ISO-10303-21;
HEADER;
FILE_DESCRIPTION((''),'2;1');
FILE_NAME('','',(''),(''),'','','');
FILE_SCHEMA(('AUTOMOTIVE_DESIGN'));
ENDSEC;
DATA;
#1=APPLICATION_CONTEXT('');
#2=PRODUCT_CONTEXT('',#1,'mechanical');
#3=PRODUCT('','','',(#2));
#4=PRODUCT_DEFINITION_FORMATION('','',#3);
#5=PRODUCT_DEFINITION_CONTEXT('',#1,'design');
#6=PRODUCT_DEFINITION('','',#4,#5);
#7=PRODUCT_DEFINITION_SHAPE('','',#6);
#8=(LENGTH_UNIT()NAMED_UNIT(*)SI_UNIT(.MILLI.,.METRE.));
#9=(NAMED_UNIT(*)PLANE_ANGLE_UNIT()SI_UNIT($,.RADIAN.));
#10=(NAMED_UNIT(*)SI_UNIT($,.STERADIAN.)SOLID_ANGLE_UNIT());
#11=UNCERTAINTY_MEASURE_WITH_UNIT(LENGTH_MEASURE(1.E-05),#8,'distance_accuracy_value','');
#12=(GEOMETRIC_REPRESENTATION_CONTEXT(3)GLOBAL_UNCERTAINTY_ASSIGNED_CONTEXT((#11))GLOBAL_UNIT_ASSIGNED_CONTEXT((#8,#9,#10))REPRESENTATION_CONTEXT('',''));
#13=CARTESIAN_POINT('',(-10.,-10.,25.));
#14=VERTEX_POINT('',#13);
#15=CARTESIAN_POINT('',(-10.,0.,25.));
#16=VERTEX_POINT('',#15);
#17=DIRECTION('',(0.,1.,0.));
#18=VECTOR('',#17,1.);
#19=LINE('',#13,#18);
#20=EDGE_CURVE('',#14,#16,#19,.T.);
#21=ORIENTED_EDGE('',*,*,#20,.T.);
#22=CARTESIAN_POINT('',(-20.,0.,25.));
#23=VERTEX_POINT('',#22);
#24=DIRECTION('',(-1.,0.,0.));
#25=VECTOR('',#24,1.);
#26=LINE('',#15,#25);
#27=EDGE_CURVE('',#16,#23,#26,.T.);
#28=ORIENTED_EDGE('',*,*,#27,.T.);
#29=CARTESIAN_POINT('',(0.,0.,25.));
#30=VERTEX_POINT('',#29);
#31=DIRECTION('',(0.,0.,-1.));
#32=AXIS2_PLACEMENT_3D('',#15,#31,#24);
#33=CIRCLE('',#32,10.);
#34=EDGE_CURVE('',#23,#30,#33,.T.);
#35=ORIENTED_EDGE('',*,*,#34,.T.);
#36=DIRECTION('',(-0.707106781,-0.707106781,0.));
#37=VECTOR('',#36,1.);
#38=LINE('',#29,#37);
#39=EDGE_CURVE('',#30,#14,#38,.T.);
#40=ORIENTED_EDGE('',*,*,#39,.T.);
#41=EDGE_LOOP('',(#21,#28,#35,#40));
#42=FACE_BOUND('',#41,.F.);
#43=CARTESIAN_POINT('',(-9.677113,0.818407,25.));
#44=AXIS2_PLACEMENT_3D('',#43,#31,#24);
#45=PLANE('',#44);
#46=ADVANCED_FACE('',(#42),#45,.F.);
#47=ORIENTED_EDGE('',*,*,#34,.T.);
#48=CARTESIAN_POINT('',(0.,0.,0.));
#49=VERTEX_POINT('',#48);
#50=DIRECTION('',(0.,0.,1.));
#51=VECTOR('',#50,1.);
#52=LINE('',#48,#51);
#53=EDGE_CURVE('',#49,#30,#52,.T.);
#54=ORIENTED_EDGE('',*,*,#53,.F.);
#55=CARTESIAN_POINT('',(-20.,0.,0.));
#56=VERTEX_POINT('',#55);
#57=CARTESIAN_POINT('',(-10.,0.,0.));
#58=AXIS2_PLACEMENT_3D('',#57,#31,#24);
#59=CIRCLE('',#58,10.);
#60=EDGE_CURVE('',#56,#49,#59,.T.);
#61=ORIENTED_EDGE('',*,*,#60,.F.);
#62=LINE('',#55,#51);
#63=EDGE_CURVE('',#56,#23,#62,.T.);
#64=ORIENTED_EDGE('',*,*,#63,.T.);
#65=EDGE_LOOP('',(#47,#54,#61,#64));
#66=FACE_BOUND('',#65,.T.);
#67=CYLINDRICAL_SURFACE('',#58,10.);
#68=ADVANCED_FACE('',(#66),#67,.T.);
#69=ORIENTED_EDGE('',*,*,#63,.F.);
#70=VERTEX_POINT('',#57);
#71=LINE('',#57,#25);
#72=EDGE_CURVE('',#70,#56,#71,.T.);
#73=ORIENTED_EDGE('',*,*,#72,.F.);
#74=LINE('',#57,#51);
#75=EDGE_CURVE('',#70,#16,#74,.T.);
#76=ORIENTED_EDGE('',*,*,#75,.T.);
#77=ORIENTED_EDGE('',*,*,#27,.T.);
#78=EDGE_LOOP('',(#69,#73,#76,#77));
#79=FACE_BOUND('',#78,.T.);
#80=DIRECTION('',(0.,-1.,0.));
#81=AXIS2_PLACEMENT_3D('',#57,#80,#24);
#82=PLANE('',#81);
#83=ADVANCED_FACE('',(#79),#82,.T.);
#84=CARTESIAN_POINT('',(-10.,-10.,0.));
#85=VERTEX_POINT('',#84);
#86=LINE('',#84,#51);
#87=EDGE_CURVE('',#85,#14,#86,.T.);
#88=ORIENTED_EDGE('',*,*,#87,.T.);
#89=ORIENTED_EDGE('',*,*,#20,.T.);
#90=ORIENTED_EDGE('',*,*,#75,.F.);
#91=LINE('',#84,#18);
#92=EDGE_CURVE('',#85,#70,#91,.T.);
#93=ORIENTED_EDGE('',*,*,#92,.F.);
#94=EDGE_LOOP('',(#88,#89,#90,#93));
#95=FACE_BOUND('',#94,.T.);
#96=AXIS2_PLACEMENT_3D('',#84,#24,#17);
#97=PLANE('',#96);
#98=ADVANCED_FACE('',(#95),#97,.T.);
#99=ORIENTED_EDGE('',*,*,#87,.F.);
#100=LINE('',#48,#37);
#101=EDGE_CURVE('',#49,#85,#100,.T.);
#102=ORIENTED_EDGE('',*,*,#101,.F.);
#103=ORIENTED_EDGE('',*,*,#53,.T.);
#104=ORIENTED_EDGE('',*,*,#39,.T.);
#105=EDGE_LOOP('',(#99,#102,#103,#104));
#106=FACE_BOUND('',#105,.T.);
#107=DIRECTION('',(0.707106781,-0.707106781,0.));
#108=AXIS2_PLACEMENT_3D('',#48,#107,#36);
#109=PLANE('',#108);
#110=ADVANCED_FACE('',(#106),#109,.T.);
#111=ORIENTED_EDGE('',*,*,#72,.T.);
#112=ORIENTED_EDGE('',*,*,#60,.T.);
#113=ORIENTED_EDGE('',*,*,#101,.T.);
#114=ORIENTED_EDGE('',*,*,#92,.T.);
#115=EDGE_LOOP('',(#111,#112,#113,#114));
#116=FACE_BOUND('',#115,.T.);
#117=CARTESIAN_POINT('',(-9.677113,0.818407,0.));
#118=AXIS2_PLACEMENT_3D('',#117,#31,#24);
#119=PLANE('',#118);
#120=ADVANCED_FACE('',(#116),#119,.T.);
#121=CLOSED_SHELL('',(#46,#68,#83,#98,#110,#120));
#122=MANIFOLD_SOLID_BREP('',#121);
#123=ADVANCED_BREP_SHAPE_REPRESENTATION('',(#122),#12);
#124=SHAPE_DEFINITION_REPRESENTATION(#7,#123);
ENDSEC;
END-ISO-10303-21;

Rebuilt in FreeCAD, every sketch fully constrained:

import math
import FreeCAD as App
import Part
import Sketcher

V = App.Vector

doc = App.newDocument("Part")
body = doc.addObject("PartDesign::Body", "Body")

# Sketch on XY plane
sketch1 = doc.addObject("Sketcher::SketchObject", "Sketch")
body.addObject(sketch1)
sketch1.AttachmentSupport = (doc.XY_Plane, [""])
sketch1.MapMode = "FlatFace"
sketch1.addGeometry(Part.LineSegment(V(-10, 0, 0), V(-10, -10, 0)), False)
sketch1.addGeometry(Part.LineSegment(V(-10, -10, 0), V(0, 0, 0)), False)
sketch1.addGeometry(Part.ArcOfCircle(Part.Circle(V(-10, 0, 0), V(0, 0, 1), 10), math.radians(0), math.radians(180)), False)
sketch1.addGeometry(Part.LineSegment(V(-20, 0, 0), V(-10, 0, 0)), False)
sketch1.addConstraint(Sketcher.Constraint("Coincident", 0, 2, 1, 1))
sketch1.addConstraint(Sketcher.Constraint("Coincident", 1, 2, 2, 1))
sketch1.addConstraint(Sketcher.Constraint("Coincident", 2, 2, 3, 1))
sketch1.addConstraint(Sketcher.Constraint("Coincident", 3, 2, 0, 1))
sketch1.addConstraint(Sketcher.Constraint("Vertical", 0))
sketch1.addConstraint(Sketcher.Constraint("Horizontal", 3))
sketch1.addConstraint(Sketcher.Constraint("Coincident", 1, 2, -1, 1))
sketch1.addConstraint(Sketcher.Constraint("Coincident", 3, 2, 2, 3))
sketch1.addConstraint(Sketcher.Constraint("PointOnObject", 2, 3, -1))
sketch1.addConstraint(Sketcher.Constraint("Equal", 3, 0))
sketch1.addConstraint(Sketcher.Constraint("Radius", 2, 10.0))
pad1 = doc.addObject("PartDesign::Pad", "Pad")
body.addObject(pad1)
pad1.Profile = sketch1
pad1.Length = 25

doc.recompute()
